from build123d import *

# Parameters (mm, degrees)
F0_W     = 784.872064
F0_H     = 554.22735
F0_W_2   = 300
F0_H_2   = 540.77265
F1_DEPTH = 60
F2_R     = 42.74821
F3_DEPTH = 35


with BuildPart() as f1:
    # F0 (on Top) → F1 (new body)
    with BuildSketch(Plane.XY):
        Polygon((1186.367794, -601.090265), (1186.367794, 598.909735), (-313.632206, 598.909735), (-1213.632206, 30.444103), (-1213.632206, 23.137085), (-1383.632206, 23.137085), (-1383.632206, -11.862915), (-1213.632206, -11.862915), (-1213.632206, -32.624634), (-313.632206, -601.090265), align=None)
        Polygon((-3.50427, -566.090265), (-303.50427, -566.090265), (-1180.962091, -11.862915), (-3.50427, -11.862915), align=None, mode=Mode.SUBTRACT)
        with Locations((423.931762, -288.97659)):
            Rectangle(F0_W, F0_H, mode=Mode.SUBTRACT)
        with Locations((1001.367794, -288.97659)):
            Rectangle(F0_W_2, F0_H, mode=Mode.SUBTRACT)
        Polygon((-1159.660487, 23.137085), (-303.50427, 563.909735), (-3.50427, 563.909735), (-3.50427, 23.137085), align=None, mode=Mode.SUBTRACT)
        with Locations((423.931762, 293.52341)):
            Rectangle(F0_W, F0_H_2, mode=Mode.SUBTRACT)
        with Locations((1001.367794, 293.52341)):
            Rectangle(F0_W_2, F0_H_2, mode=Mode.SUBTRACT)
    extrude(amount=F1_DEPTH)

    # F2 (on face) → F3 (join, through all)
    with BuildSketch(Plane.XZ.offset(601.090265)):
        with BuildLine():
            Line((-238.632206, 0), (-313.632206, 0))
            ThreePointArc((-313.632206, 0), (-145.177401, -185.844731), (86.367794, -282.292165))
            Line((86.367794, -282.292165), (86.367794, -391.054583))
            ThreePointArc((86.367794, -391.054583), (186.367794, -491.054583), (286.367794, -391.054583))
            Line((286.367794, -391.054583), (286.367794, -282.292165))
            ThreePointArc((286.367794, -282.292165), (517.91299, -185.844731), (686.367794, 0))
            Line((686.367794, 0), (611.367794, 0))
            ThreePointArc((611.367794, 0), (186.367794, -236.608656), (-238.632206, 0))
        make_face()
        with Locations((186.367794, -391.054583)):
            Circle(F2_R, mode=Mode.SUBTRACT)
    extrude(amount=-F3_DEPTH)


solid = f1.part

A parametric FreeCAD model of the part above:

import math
import FreeCAD as App
import Part
import Sketcher
Q = App.Units.Quantity


def add_polygon(sketch, points):
    """Adds a closed chain of lines whose ends are joined by coincident constraints."""
    first, n = sketch.GeometryCount, len(points)
    for a, b in zip(points, points[1:] + points[:1]):
        sketch.addGeometry(Part.LineSegment(App.Vector(*a, 0), App.Vector(*b, 0)), False)
    for i in range(n):
        sketch.addConstraint(Sketcher.Constraint("Coincident", first + i, 2, first + (i + 1) % n, 1))

doc = App.newDocument("Part")
body = doc.addObject("PartDesign::Body", "Body")

# Sketch on XY plane
sketch1 = body.newObject("Sketcher::SketchObject", "Sketch")
sketch1.AttachmentSupport = (doc.getObject("XY_Plane"), [""])
sketch1.MapMode = "FlatFace"
add_polygon(sketch1, [(1186.367794, -601.090265), (1186.367794, 598.909735), (-313.632206, 598.909735), (-1213.632206, 30.444103), (-1213.632206, 23.137085), (-1383.632206, 23.137085), (-1383.632206, -11.862915), (-1213.632206, -11.862915), (-1213.632206, -32.624634), (-313.632206, -601.090265)])  # lines 0-9
add_polygon(sketch1, [(-3.50427, -11.862915), (-3.50427, -566.090265), (-303.50427, -566.090265), (-1180.962091, -11.862915)])  # lines 10-13
add_polygon(sketch1, [(816.367794, -566.090265), (31.49573, -566.090265), (31.49573, -11.862915), (816.367794, -11.862915)])  # lines 14-17
add_polygon(sketch1, [(1151.367794, -566.090265), (851.367794, -566.090265), (851.367794, -11.862915), (1151.367794, -11.862915)])  # lines 18-21
add_polygon(sketch1, [(-3.50427, 23.137085), (-1159.660487, 23.137085), (-303.50427, 563.909735), (-3.50427, 563.909735)])  # lines 22-25
add_polygon(sketch1, [(816.367794, 23.137085), (31.49573, 23.137085), (31.49573, 563.909735), (816.367794, 563.909735)])  # lines 26-29
add_polygon(sketch1, [(1151.367794, 23.137085), (851.367794, 23.137085), (851.367794, 563.909735), (1151.367794, 563.909735)])  # lines 30-33
sketch1.addConstraint([
    Sketcher.Constraint("Vertical", 0),
    Sketcher.Constraint("Horizontal", 1),
    Sketcher.Constraint("Vertical", 3),
    Sketcher.Constraint("Horizontal", 4),
    Sketcher.Constraint("Vertical", 5),
    Sketcher.Constraint("Horizontal", 6),
    Sketcher.Constraint("Vertical", 7),
    Sketcher.Constraint("Horizontal", 9),
    Sketcher.Constraint("Vertical", 10),
    Sketcher.Constraint("Horizontal", 11),
    Sketcher.Constraint("Horizontal", 13),
    Sketcher.Constraint("Horizontal", 14),
    Sketcher.Constraint("Vertical", 15),
    Sketcher.Constraint("Horizontal", 16),
    Sketcher.Constraint("Vertical", 17),
    Sketcher.Constraint("Horizontal", 18),
    Sketcher.Constraint("Vertical", 19),
    Sketcher.Constraint("Horizontal", 20),
    Sketcher.Constraint("Vertical", 21),
    Sketcher.Constraint("Horizontal", 22),
    Sketcher.Constraint("Horizontal", 24),
    Sketcher.Constraint("Vertical", 25),
    Sketcher.Constraint("Horizontal", 26),
    Sketcher.Constraint("Vertical", 27),
    Sketcher.Constraint("Horizontal", 28),
    Sketcher.Constraint("Vertical", 29),
    Sketcher.Constraint("Horizontal", 30),
    Sketcher.Constraint("Vertical", 31),
    Sketcher.Constraint("Horizontal", 32),
    Sketcher.Constraint("Vertical", 33),
    Sketcher.Constraint("DistanceX", 1, 2, 1, 1, Q("1500 mm")),
    Sketcher.Constraint("DistanceX", 4, 2, 4, 1, Q("170 mm")),
    Sketcher.Constraint("DistanceX", 6, 1, 6, 2, Q("170 mm")),
    Sketcher.Constraint("DistanceX", 9, 1, 9, 2, Q("1500 mm")),
    Sketcher.Constraint("DistanceX", 11, 2, 11, 1, Q("300 mm")),
    Sketcher.Constraint("DistanceX", 18, 2, 18, 1, Q("300 mm")),
    Sketcher.Constraint("DistanceX", 24, 1, 24, 2, Q("300 mm")),
    Sketcher.Constraint("DistanceX", 30, 2, 30, 1, Q("300 mm")),
    Sketcher.Constraint("DistanceY", 0, 1, 0, 2, Q("1200 mm")),
    Sketcher.Constraint("DistanceY", 5, 2, 5, 1, Q("35 mm")),
    Sketcher.Constraint("DistanceX", 2, 2, 1, 2, Q("900 mm")),
    Sketcher.Constraint("DistanceY", 8, 2, 10, 2, Q("35 mm")),
    Sketcher.Constraint("DistanceY", 12, 2, 3, 2, Q("35 mm")),
    Sketcher.Constraint("DistanceX", 10, 2, 14, 2, Q("35 mm")),
    Sketcher.Constraint("DistanceY", 8, 2, 14, 2, Q("35 mm")),
    Sketcher.Constraint("DistanceX", 16, 2, 9, 2, Q("370 mm")),
    Sketcher.Constraint("DistanceX", 17, 2, 18, 2, Q("35 mm")),
    Sketcher.Constraint("DistanceY", 9, 2, 18, 2, Q("35 mm")),
    Sketcher.Constraint("DistanceY", 12, 2, 22, 2, Q("35 mm")),
    Sketcher.Constraint("DistanceY", 23, 2, 1, 2, Q("35 mm")),
    Sketcher.Constraint("DistanceX", 23, 2, 13, 2, Q("300 mm")),
    Sketcher.Constraint("DistanceY", 15, 2, 25, 2, Q("35 mm")),
    Sketcher.Constraint("DistanceY", 15, 2, 26, 2, Q("35 mm")),
    Sketcher.Constraint("DistanceX", 25, 2, 26, 2, Q("35 mm")),
    Sketcher.Constraint("DistanceY", 27, 2, 1, 2, Q("35 mm")),
    Sketcher.Constraint("DistanceX", 28, 2, 0, 2, Q("370 mm")),
    Sketcher.Constraint("DistanceY", 19, 2, 29, 2, Q("35 mm")),
    Sketcher.Constraint("DistanceY", 19, 2, 30, 2, Q("35 mm")),
    Sketcher.Constraint("DistanceX", 29, 2, 30, 2, Q("35 mm")),
    Sketcher.Constraint("DistanceY", 31, 2, 0, 2, Q("35 mm")),
    Sketcher.Constraint("DistanceX", 13, 1, 13, 2, Q("1177.457821 mm")),
    Sketcher.Constraint("DistanceY", 7, 2, 7, 1, Q("20.761719 mm")),
    Sketcher.Constraint("DistanceY", 10, 2, 10, 1, Q("554.22735 mm")),
    Sketcher.Constraint("DistanceX", 14, 2, 14, 1, Q("784.872064 mm")),
    Sketcher.Constraint("DistanceX", 22, 2, 22, 1, Q("1156.156217 mm")),
    Sketcher.Constraint("DistanceY", 3, 2, 3, 1, Q("7.307018 mm")),
    Sketcher.Constraint("DistanceX", 10, 2, -1, 1, Q("3.50427 mm")),
    Sketcher.Constraint("DistanceY", -1, 1, 0, 2, Q("598.909735 mm")),
])
pad1 = body.newObject("PartDesign::Pad", "Pad")
pad1.Profile = sketch1
pad1.Length = 60

# Sketch on XZ plane
sketch2 = body.newObject("Sketcher::SketchObject", "Sketch001")
sketch2.AttachmentSupport = (doc.getObject("XZ_Plane"), [""])
sketch2.MapMode = "FlatFace"
sketch2.AttachmentOffset = App.Placement(App.Vector(0, 0, 601.090265), App.Rotation())
sketch2.addGeometry([
    Part.LineSegment(App.Vector(-238.632206, 0, 0), App.Vector(-313.632206, 0, 0)),  # 0
    Part.ArcOfCircle(Part.Circle(App.Vector(186.367794, 283.945418, 0), App.Vector(0, 0, 1), 575), math.radians(-150.408154), math.radians(-100.01541)),  # 1
    Part.LineSegment(App.Vector(86.367794, -282.292165, 0), App.Vector(86.367794, -391.054583, 0)),  # 2
    Part.ArcOfCircle(Part.Circle(App.Vector(186.367794, -391.054583, 0), App.Vector(0, 0, 1), 100), math.radians(180), math.radians(360)),  # 3
    Part.LineSegment(App.Vector(286.367794, -391.054583, 0), App.Vector(286.367794, -282.292165, 0)),  # 4
    Part.ArcOfCircle(Part.Circle(App.Vector(186.367798, 283.945413, 0), App.Vector(0, 0, 1), 574.999995), math.radians(-79.98459), math.radians(-29.591846)),  # 5
    Part.LineSegment(App.Vector(686.367794, 0, 0), App.Vector(611.367794, 0, 0)),  # 6
    Part.ArcOfCircle(Part.Circle(App.Vector(186.367794, 263.391344, 0), App.Vector(0, 0, 1), 500), math.radians(-148.211669), math.radians(-31.788331)),  # 7
    Part.Circle(App.Vector(186.367794, -391.054583, 0), App.Vector(0, 0, 1), 42.74821),  # 8
], False)
sketch2.addConstraint([
    Sketcher.Constraint("Coincident", 0, 2, 1, 1),
    Sketcher.Constraint("Coincident", 1, 2, 2, 1),
    Sketcher.Constraint("Tangent", 2, 2, 3, 1),
    Sketcher.Constraint("Tangent", 3, 2, 4, 1),
    Sketcher.Constraint("Coincident", 4, 2, 5, 1),
    Sketcher.Constraint("Coincident", 5, 2, 6, 1),
    Sketcher.Constraint("Coincident", 6, 2, 7, 2),
    Sketcher.Constraint("Coincident", 7, 1, 0, 1),
    Sketcher.Constraint("Horizontal", 0),
    Sketcher.Constraint("Vertical", 2),
    Sketcher.Constraint("Vertical", 4),
    Sketcher.Constraint("Horizontal", 6),
    Sketcher.Constraint("Coincident", 5, 3, 1, 3),
    Sketcher.Constraint("Coincident", 8, 3, 3, 3),
    Sketcher.Constraint("PointOnObject", 0, 2, -1),
    Sketcher.Constraint("PointOnObject", 6, 2, -1),
    Sketcher.Constraint("Horizontal", 1, 2, 4, 2),
    Sketcher.Constraint("Vertical", 1, 3, 3, 3),
    Sketcher.Constraint("Vertical", 3, 3, 7, 3),
    Sketcher.Constraint("Radius", 1, Q("575 mm")),
    Sketcher.Constraint("Radius", 3, Q("100 mm")),
    Sketcher.Constraint("Radius", 7, Q("500 mm")),
    Sketcher.Constraint("DistanceX", 0, 2, 0, 1, Q("75 mm")),
    Sketcher.Constraint("DistanceY", 3, 3, 1, 3, Q("675.000001 mm")),
    Sketcher.Constraint("DistanceX", 0, 2, 7, 3, Q("500 mm")),
    Sketcher.Constraint("Diameter", 8, Q("85.49642 mm")),
    Sketcher.Constraint("DistanceX", -1, 1, 1, 3, Q("186.367794 mm")),
])
pad2 = body.newObject("PartDesign::Pad", "Pad001")
pad2.Profile = sketch2
pad2.Length = 35
pad2.Reversed = True

doc.recompute()
